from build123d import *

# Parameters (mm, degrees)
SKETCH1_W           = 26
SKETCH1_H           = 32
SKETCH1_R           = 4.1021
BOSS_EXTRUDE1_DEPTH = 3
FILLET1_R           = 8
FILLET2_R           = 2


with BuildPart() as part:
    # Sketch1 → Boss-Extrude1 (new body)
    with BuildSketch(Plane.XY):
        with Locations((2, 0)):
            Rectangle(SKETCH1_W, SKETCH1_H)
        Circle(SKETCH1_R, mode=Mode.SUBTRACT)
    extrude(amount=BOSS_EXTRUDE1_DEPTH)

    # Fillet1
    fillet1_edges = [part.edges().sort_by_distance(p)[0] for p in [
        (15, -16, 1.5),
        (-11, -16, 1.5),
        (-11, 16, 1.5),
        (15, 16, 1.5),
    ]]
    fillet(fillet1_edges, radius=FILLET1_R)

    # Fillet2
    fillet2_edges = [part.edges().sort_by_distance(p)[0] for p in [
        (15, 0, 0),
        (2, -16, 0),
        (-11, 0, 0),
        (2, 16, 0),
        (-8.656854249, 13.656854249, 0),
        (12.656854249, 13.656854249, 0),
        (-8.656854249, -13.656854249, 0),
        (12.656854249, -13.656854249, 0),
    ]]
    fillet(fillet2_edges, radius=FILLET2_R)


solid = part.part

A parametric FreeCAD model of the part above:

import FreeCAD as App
import Part
import Sketcher


def edges_at(feature, points):
    """Names of the edges that pass closest to the given points."""
    edges = feature.Shape.Edges
    near = lambda p: min(range(len(edges)), key=lambda i: edges[i].distToShape(Part.Vertex(*p))[0])
    return sorted({f"Edge{near(p) + 1}" for p in points})


def add_polygon(sketch, points):
    """Adds a closed chain of lines whose ends are joined by coincident constraints."""
    first, n = sketch.GeometryCount, len(points)
    for a, b in zip(points, points[1:] + points[:1]):
        sketch.addGeometry(Part.LineSegment(App.Vector(*a, 0), App.Vector(*b, 0)), False)
    for i in range(n):
        sketch.addConstraint(Sketcher.Constraint("Coincident", first + i, 2, first + (i + 1) % n, 1))

doc = App.newDocument("Part")
body = doc.addObject("PartDesign::Body", "Body")

sketch1 = body.newObject("Sketcher::SketchObject", "Sketch")
sketch1.AttachmentSupport = (doc.getObject("XY_Plane"), [""])
sketch1.MapMode = "FlatFace"
add_polygon(sketch1, [(-11, 16), (-11, -16), (15, -16), (15, 16)])
sketch1.addGeometry(Part.Circle(App.Vector(0, 0, 0), App.Vector(0, 0, 1), 4.1021), False)
sketch1.addConstraint([
    Sketcher.Constraint("Vertical", 0),
    Sketcher.Constraint("Horizontal", 1),
    Sketcher.Constraint("Vertical", 2),
    Sketcher.Constraint("Horizontal", 3),
    Sketcher.Constraint("Coincident", 4, 3, -1, 1),
    Sketcher.Constraint("DistanceX", 1, 1, 1, 2, 26.0),
    Sketcher.Constraint("DistanceY", 0, 2, 0, 1, 32.0),
    Sketcher.Constraint("DistanceX", 0, 2, -1, 1, 11.0),
    Sketcher.Constraint("DistanceY", 0, 2, -1, 1, 16.0),
    Sketcher.Constraint("Diameter", 4, 8.2042),
])
pad1 = body.newObject("PartDesign::Pad", "Pad")
pad1.Profile = sketch1
pad1.Length = 3
doc.recompute()

fillet = body.newObject("PartDesign::Fillet", "Fillet")
fillet.Base = (pad1, edges_at(pad1, [
    (15, -16, 1.5),
    (-11, -16, 1.5),
    (-11, 16, 1.5),
    (15, 16, 1.5),
]))
fillet.Radius = 8
doc.recompute()

fillet2 = body.newObject("PartDesign::Fillet", "Fillet001")
fillet2.Base = (fillet, edges_at(fillet, [
    (15, 0, 0),
    (2, -16, 0),
    (-11, 0, 0),
    (2, 16, 0),
    (-8.657, 13.657, 0),
    (12.657, 13.657, 0),
    (-8.657, -13.657, 0),
    (12.657, -13.657, 0),
]))
fillet2.Radius = 2

doc.recompute()
